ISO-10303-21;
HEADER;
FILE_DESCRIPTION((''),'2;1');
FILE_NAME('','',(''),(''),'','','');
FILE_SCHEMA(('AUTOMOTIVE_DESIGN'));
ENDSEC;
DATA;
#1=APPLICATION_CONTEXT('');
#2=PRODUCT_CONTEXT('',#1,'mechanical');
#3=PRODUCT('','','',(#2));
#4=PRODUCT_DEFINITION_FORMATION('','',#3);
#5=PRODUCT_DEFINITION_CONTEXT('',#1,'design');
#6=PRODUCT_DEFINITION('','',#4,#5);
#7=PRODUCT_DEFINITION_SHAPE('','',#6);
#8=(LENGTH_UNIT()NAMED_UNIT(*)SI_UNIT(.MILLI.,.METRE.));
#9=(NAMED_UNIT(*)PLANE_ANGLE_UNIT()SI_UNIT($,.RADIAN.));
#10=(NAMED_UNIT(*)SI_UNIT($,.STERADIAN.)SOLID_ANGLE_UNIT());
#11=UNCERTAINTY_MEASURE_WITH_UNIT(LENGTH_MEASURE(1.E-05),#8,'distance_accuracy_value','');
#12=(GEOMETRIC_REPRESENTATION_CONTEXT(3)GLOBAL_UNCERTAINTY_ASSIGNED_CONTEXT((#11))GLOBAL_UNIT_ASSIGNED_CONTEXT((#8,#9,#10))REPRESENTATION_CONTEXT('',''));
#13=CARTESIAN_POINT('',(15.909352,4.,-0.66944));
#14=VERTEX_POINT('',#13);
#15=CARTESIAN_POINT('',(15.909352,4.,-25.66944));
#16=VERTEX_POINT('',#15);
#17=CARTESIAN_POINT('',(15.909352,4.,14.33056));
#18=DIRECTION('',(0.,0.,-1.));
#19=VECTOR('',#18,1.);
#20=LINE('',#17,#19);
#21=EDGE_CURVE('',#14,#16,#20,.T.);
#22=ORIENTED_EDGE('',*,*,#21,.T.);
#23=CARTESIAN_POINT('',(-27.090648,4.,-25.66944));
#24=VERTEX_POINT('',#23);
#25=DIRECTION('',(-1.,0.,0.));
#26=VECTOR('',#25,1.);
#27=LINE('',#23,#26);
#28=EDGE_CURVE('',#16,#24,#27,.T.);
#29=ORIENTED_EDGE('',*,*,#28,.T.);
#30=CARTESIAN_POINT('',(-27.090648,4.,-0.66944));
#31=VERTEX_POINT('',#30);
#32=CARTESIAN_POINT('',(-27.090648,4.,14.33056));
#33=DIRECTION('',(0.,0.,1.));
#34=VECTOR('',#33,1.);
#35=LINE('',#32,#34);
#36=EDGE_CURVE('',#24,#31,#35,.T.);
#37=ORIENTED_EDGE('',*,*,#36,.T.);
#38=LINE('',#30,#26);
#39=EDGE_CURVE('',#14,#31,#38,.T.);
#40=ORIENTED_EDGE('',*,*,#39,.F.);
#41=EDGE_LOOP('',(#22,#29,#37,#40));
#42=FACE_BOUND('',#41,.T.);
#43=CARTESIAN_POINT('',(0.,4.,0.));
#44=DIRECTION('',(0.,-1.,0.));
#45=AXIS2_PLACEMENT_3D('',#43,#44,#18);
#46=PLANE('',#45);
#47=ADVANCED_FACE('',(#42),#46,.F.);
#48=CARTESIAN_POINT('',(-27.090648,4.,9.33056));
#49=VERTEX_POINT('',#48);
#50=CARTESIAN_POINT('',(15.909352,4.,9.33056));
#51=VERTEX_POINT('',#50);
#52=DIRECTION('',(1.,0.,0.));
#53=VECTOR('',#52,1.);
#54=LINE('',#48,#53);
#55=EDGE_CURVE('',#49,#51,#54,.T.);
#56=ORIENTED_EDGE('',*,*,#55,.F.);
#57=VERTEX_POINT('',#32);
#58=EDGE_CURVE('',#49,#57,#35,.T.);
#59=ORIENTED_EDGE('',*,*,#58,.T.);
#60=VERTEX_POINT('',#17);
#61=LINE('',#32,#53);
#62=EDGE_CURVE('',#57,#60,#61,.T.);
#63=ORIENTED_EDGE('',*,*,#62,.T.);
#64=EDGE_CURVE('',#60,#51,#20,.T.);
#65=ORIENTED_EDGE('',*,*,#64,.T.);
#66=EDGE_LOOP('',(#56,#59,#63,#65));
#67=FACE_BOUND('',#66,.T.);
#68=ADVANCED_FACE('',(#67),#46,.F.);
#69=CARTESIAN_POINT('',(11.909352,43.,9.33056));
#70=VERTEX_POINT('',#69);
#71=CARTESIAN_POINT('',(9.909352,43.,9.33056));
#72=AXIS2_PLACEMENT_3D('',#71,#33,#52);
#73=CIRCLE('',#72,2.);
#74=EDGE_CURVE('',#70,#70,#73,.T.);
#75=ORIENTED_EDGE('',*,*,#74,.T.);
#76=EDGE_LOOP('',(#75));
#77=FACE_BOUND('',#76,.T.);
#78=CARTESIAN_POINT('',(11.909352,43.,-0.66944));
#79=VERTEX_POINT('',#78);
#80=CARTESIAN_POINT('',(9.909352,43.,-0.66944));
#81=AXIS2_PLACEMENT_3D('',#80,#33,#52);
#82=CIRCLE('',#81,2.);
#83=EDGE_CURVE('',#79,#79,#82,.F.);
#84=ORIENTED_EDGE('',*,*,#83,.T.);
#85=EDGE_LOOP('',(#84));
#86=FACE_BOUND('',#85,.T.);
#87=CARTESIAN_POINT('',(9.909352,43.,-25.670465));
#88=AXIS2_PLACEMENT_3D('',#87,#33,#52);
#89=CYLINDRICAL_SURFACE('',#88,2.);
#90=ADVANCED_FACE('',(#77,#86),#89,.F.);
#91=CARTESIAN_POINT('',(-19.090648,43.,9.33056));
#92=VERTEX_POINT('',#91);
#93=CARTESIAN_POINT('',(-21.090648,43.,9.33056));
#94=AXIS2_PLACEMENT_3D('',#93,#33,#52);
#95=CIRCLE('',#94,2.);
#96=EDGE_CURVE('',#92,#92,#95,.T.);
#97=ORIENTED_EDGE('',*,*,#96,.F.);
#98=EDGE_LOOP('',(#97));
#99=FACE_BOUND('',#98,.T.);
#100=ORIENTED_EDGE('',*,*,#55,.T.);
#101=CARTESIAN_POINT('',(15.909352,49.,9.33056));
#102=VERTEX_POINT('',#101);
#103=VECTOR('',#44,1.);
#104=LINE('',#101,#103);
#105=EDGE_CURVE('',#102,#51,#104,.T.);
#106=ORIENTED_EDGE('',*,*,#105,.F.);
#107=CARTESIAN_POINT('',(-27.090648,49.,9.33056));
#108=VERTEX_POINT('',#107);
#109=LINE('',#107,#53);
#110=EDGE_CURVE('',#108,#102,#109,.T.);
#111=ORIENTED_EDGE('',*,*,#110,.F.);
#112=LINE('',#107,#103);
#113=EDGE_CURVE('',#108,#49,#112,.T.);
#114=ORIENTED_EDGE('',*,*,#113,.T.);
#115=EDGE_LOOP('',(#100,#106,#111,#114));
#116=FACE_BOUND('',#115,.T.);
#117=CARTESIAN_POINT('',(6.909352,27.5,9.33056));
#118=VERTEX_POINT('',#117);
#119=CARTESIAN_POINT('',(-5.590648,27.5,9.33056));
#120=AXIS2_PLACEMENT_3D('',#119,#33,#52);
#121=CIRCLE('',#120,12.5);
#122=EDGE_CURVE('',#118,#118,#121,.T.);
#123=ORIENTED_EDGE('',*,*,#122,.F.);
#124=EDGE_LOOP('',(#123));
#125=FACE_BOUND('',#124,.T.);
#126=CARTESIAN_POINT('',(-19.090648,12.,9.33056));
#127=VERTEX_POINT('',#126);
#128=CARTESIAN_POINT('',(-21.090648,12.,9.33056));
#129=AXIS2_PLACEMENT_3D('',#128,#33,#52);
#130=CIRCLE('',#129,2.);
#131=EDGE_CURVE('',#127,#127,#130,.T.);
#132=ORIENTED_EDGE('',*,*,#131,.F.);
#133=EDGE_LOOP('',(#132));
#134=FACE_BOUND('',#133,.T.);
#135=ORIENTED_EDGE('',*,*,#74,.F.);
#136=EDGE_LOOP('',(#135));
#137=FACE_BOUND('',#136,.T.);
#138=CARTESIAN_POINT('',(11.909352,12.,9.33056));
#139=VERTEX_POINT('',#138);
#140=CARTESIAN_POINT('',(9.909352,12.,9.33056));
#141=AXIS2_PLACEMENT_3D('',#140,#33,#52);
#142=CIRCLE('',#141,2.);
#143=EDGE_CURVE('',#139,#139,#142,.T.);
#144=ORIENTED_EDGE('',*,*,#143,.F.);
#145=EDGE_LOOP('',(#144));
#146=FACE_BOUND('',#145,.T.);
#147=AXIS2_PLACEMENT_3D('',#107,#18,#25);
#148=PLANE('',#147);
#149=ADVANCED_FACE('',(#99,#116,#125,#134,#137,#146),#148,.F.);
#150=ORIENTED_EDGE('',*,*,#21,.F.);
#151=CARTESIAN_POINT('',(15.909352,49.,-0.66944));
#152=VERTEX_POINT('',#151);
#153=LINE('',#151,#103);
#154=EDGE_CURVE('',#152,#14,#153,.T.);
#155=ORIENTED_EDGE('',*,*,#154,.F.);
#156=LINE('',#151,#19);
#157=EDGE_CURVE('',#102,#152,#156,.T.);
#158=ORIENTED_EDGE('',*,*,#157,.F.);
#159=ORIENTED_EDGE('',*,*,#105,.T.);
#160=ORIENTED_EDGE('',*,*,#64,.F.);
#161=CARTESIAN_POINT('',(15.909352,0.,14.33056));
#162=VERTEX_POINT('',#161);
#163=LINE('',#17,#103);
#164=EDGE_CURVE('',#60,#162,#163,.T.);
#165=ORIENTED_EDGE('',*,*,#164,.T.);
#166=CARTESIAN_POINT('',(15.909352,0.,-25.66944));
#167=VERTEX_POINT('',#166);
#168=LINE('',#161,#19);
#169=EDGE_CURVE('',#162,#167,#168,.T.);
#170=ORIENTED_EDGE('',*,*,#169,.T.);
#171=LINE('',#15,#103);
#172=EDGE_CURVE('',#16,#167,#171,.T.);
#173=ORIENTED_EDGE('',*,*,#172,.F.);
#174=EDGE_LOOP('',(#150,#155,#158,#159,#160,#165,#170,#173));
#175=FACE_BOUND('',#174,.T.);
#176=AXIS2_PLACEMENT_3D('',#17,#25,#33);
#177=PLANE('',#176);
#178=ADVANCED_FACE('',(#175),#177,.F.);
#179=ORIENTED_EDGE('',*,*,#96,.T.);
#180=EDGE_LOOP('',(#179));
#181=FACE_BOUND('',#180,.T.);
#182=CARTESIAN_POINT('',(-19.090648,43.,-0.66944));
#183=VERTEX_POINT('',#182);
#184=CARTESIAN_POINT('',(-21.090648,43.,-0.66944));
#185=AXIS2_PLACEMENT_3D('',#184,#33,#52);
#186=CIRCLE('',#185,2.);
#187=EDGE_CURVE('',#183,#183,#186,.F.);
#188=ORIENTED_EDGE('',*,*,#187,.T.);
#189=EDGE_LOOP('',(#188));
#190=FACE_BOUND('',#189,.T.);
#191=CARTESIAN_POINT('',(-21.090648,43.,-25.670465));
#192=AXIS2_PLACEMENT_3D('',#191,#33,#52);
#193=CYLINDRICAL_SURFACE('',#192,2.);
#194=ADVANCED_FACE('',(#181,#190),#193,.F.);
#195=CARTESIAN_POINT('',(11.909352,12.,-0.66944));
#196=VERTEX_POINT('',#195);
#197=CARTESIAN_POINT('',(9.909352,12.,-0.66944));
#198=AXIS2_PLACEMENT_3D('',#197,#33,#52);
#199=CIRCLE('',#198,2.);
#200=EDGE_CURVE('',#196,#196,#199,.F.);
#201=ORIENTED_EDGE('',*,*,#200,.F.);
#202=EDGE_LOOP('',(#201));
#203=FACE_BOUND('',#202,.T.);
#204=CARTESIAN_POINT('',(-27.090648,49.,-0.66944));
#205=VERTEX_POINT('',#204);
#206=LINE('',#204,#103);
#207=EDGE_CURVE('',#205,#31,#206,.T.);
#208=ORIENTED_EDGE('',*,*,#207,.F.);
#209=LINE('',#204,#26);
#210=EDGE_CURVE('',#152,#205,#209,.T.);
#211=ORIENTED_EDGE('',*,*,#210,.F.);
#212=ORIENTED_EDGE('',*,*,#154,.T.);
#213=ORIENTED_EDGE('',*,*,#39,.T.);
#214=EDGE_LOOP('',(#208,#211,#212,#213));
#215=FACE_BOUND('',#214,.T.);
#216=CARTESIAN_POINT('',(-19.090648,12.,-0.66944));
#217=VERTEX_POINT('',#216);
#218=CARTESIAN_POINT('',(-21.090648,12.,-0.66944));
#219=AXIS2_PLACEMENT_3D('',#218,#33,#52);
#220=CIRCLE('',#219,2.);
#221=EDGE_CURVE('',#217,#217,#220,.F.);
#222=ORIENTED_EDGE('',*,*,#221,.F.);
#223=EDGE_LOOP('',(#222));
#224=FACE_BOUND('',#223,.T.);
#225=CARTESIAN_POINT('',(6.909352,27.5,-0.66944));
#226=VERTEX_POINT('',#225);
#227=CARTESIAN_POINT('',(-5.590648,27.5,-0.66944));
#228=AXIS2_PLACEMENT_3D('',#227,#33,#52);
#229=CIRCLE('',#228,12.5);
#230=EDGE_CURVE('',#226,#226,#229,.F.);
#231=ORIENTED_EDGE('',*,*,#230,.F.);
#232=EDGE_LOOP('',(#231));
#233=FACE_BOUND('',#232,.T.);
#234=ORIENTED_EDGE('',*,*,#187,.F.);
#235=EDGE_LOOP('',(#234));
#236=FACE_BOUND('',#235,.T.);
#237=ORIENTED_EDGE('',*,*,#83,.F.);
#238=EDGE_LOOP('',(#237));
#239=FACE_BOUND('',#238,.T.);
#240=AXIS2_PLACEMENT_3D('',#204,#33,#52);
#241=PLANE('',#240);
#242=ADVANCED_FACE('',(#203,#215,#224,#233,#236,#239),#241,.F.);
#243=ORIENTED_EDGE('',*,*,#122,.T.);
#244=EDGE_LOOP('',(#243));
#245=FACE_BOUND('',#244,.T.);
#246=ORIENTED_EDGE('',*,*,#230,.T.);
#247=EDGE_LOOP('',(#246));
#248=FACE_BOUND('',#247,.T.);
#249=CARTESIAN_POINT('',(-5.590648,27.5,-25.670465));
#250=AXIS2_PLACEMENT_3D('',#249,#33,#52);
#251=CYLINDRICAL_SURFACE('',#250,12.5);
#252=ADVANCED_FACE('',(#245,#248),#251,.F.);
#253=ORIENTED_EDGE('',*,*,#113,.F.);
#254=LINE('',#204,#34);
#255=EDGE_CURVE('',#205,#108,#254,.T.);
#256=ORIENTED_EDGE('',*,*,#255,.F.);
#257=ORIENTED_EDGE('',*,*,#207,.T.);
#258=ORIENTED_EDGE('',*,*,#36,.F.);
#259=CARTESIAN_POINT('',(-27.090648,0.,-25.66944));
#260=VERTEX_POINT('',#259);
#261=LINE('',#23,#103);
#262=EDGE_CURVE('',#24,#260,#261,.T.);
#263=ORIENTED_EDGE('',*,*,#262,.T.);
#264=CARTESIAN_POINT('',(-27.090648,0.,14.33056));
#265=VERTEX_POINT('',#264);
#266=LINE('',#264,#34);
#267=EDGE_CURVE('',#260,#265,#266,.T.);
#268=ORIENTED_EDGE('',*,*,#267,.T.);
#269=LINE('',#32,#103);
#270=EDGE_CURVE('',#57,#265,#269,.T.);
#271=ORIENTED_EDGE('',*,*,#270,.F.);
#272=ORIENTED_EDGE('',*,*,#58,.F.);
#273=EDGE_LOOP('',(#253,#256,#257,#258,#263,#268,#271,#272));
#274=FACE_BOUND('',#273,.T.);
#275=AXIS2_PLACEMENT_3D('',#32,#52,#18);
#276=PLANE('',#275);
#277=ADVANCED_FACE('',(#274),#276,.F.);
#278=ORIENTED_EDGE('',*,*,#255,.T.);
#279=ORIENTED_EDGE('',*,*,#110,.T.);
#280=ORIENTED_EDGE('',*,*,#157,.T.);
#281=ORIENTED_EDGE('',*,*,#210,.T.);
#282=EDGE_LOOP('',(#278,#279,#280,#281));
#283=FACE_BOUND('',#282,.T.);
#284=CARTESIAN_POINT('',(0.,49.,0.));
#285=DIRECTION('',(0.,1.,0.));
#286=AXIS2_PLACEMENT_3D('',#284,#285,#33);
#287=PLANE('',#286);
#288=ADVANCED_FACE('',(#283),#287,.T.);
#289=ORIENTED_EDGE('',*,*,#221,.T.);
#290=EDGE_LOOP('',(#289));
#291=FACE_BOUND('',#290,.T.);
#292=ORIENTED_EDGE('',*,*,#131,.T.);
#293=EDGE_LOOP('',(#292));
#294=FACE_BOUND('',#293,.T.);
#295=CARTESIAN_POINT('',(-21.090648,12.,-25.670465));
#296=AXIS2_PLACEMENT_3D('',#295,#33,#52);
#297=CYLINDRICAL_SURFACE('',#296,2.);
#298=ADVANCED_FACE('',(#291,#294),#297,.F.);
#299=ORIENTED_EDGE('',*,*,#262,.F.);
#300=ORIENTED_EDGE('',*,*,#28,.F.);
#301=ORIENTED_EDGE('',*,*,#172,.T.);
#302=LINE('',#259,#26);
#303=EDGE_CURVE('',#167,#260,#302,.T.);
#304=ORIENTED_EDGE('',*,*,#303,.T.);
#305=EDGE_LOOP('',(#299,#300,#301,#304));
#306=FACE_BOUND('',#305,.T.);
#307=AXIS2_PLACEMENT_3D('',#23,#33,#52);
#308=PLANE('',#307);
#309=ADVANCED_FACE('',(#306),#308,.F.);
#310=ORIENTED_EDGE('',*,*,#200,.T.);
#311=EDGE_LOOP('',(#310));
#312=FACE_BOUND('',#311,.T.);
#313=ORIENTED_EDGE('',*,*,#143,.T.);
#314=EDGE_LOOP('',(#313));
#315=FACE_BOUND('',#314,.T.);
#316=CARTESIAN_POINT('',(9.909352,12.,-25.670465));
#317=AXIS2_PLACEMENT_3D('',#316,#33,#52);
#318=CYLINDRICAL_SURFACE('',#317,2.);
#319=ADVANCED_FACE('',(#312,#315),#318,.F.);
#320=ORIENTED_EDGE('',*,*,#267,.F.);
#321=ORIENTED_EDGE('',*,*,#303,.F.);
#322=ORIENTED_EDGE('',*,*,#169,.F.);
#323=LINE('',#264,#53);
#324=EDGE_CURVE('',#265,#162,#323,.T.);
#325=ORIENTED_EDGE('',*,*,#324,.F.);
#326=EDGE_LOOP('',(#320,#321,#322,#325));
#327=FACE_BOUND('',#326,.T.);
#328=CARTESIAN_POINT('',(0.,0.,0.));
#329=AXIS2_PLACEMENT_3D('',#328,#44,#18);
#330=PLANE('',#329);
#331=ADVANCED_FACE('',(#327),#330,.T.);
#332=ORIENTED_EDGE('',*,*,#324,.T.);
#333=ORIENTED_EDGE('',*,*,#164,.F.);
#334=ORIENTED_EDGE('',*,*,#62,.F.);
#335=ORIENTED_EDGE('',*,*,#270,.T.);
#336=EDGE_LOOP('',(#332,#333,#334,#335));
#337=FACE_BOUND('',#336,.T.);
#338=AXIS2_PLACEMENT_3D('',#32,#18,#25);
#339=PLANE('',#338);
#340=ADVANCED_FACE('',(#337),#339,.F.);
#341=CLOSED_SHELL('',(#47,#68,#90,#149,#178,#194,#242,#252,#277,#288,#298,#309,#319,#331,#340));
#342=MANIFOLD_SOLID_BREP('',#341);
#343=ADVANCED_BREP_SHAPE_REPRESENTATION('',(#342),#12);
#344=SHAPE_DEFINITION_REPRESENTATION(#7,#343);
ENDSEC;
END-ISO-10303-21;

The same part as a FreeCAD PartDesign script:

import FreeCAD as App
import Part
import Sketcher
Q = App.Units.Quantity

doc = App.newDocument("Part")
body = doc.addObject("PartDesign::Body", "Body")

sketch1 = doc.addObject("Sketcher::SketchObject", "Sketch")
body.addObject(sketch1)
sketch1.AttachmentSupport = (doc.XZ_Plane, [""])
sketch1.MapMode = "FlatFace"
sketch1.addGeometry([
    Part.LineSegment(App.Vector(-27.090648, -25.66944, 0), App.Vector(-27.090648, 14.33056, 0)),
    Part.LineSegment(App.Vector(-27.090648, 14.33056, 0), App.Vector(15.909352, 14.33056, 0)),
    Part.LineSegment(App.Vector(15.909352, 14.33056, 0), App.Vector(15.909352, -25.66944, 0)),
    Part.LineSegment(App.Vector(15.909352, -25.66944, 0), App.Vector(-27.090648, -25.66944, 0)),
], False)
sketch1.addConstraint([
    Sketcher.Constraint("Coincident", 0, 2, 1, 1),
    Sketcher.Constraint("Coincident", 1, 2, 2, 1),
    Sketcher.Constraint("Coincident", 2, 2, 3, 1),
    Sketcher.Constraint("Coincident", 3, 2, 0, 1),
    Sketcher.Constraint("Vertical", 0),
    Sketcher.Constraint("Horizontal", 1),
    Sketcher.Constraint("Vertical", 2),
    Sketcher.Constraint("Horizontal", 3),
    Sketcher.Constraint("DistanceX", 1, 1, 1, 2, Q("43 mm")),
    Sketcher.Constraint("DistanceY", 0, 1, 0, 2, Q("40 mm")),
    Sketcher.Constraint("DistanceX", 0, 2, -1, 1, Q("27.090648 mm")),
    Sketcher.Constraint("DistanceY", -1, 1, 0, 2, Q("14.33056 mm")),
])
pad1 = doc.addObject("PartDesign::Pad", "Pad")
body.addObject(pad1)
pad1.Profile = sketch1
pad1.Length = 4
pad1.Reversed = True

sketch2 = doc.addObject("Sketcher::SketchObject", "Sketch001")
body.addObject(sketch2)
sketch2.AttachmentSupport = (doc.XZ_Plane, [""])
sketch2.MapMode = "FlatFace"
sketch2.AttachmentOffset = App.Placement(App.Vector(0, 0, -4), App.Rotation())
sketch2.addGeometry([
    Part.LineSegment(App.Vector(-27.090648, -0.66944, 0), App.Vector(-27.090648, 9.33056, 0)),
    Part.LineSegment(App.Vector(-27.090648, 9.33056, 0), App.Vector(15.909352, 9.33056, 0)),
    Part.LineSegment(App.Vector(15.909352, 9.33056, 0), App.Vector(15.909352, -0.66944, 0)),
    Part.LineSegment(App.Vector(15.909352, -0.66944, 0), App.Vector(-27.090648, -0.66944, 0)),
], False)
sketch2.addConstraint([
    Sketcher.Constraint("Coincident", 0, 2, 1, 1),
    Sketcher.Constraint("Coincident", 1, 2, 2, 1),
    Sketcher.Constraint("Coincident", 2, 2, 3, 1),
    Sketcher.Constraint("Coincident", 3, 2, 0, 1),
    Sketcher.Constraint("Vertical", 0),
    Sketcher.Constraint("Horizontal", 1),
    Sketcher.Constraint("Vertical", 2),
    Sketcher.Constraint("Horizontal", 3),
    Sketcher.Constraint("DistanceX", 1, 1, 1, 2, Q("43 mm")),
    Sketcher.Constraint("DistanceY", 0, 1, 0, 2, Q("10 mm")),
    Sketcher.Constraint("DistanceX", 0, 2, -1, 1, Q("27.090648 mm")),
    Sketcher.Constraint("DistanceY", -1, 1, 0, 2, Q("9.33056 mm")),
])
pad2 = doc.addObject("PartDesign::Pad", "Pad001")
body.addObject(pad2)
pad2.Profile = sketch2
pad2.Length = 45
pad2.Reversed = True

sketch3 = doc.addObject("Sketcher::SketchObject", "Sketch002")
body.addObject(sketch3)
sketch3.AttachmentSupport = (doc.XY_Plane, [""])
sketch3.MapMode = "FlatFace"
sketch3.AttachmentOffset = App.Placement(App.Vector(0, 0, 9.33056), App.Rotation())
sketch3.addGeometry(Part.Circle(App.Vector(-5.590648, 27.5, 0), App.Vector(0, 0, 1), 12.5), False)
sketch3.addConstraint([
    Sketcher.Constraint("Diameter", 0, Q("25 mm")),
    Sketcher.Constraint("DistanceY", -1, 1, 0, 3, Q("27.5 mm")),
    Sketcher.Constraint("DistanceX", 0, 3, -1, 1, Q("5.590648 mm")),
])
pocket1 = doc.addObject("PartDesign::Pocket", "Pocket")
body.addObject(pocket1)
pocket1.Profile = sketch3
pocket1.Type = "UpToFirst"

sketch4 = doc.addObject("Sketcher::SketchObject", "Sketch003")
body.addObject(sketch4)
sketch4.AttachmentSupport = (doc.XY_Plane, [""])
sketch4.MapMode = "FlatFace"
sketch4.AttachmentOffset = App.Placement(App.Vector(0, 0, 9.33056), App.Rotation())
sketch4.addGeometry(Part.Circle(App.Vector(-21.090648, 43, 0), App.Vector(0, 0, 1), 2), False)
sketch4.addConstraint([
    Sketcher.Constraint("Diameter", 0, Q("4 mm")),
    Sketcher.Constraint("DistanceY", -1, 1, 0, 3, Q("43 mm")),
    Sketcher.Constraint("DistanceX", 0, 3, -1, 1, Q("21.090648 mm")),
])
pocket2 = doc.addObject("PartDesign::Pocket", "Pocket001")
body.addObject(pocket2)
pocket2.Profile = sketch4
pocket2.Type = "UpToFirst"

sketch5 = doc.addObject("Sketcher::SketchObject", "Sketch004")
body.addObject(sketch5)
sketch5.AttachmentSupport = (doc.XY_Plane, [""])
sketch5.MapMode = "FlatFace"
sketch5.AttachmentOffset = App.Placement(App.Vector(0, 0, 9.33056), App.Rotation())
sketch5.addGeometry(Part.Circle(App.Vector(9.909352, 43, 0), App.Vector(0, 0, 1), 2), False)
sketch5.addConstraint([
    Sketcher.Constraint("Diameter", 0, Q("4 mm")),
    Sketcher.Constraint("DistanceY", -1, 1, 0, 3, Q("43 mm")),
    Sketcher.Constraint("DistanceX", -1, 1, 0, 3, Q("9.909352 mm")),
])
pocket3 = doc.addObject("PartDesign::Pocket", "Pocket002")
body.addObject(pocket3)
pocket3.Profile = sketch5
pocket3.Type = "UpToFirst"

sketch6 = doc.addObject("Sketcher::SketchObject", "Sketch005")
body.addObject(sketch6)
sketch6.AttachmentSupport = (doc.XY_Plane, [""])
sketch6.MapMode = "FlatFace"
sketch6.AttachmentOffset = App.Placement(App.Vector(0, 0, 9.33056), App.Rotation())
sketch6.addGeometry(Part.Circle(App.Vector(9.909352, 12, 0), App.Vector(0, 0, 1), 2), False)
sketch6.addConstraint([
    Sketcher.Constraint("Diameter", 0, Q("4 mm")),
    Sketcher.Constraint("DistanceY", -1, 1, 0, 3, Q("12 mm")),
    Sketcher.Constraint("DistanceX", -1, 1, 0, 3, Q("9.909352 mm")),
])
pocket4 = doc.addObject("PartDesign::Pocket", "Pocket003")
body.addObject(pocket4)
pocket4.Profile = sketch6
pocket4.Type = "UpToFirst"

sketch7 = doc.addObject("Sketcher::SketchObject", "Sketch006")
body.addObject(sketch7)
sketch7.AttachmentSupport = (doc.XY_Plane, [""])
sketch7.MapMode = "FlatFace"
sketch7.AttachmentOffset = App.Placement(App.Vector(0, 0, 9.33056), App.Rotation())
sketch7.addGeometry(Part.Circle(App.Vector(-21.090648, 12, 0), App.Vector(0, 0, 1), 2), False)
sketch7.addConstraint([
    Sketcher.Constraint("Diameter", 0, Q("4 mm")),
    Sketcher.Constraint("DistanceY", -1, 1, 0, 3, Q("12 mm")),
    Sketcher.Constraint("DistanceX", 0, 3, -1, 1, Q("21.090648 mm")),
])
pocket5 = doc.addObject("PartDesign::Pocket", "Pocket004")
body.addObject(pocket5)
pocket5.Profile = sketch7
pocket5.Type = "UpToFirst"

doc.recompute()
